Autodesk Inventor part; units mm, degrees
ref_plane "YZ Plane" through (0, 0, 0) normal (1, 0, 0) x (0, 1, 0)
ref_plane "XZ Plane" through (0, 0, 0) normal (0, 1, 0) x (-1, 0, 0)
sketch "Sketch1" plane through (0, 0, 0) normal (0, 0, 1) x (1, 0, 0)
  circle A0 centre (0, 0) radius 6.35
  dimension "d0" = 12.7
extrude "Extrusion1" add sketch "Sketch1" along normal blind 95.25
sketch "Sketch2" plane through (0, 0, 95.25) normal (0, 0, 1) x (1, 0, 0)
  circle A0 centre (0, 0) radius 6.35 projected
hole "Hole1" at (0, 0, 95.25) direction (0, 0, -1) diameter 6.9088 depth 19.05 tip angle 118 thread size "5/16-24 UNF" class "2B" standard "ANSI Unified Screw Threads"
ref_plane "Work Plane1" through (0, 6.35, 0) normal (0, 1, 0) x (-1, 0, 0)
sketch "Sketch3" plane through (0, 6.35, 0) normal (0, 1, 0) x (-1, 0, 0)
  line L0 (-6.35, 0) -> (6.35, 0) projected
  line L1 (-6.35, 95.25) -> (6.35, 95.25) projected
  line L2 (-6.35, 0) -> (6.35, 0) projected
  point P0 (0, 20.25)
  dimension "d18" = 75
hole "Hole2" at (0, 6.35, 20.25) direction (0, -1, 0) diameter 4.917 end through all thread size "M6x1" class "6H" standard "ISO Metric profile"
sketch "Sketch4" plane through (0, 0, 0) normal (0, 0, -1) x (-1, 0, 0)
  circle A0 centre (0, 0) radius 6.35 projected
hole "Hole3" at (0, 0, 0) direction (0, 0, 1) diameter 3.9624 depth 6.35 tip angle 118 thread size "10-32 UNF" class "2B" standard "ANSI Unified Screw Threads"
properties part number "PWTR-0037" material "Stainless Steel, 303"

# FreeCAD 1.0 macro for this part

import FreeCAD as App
import Part
import Sketcher
Q = App.Units.Quantity

doc = App.newDocument("Part")
params = doc.addObject("Spreadsheet::Sheet", "Params")
for row, (alias, value) in enumerate([
    ("sketch1_diameter", "0.5 in"),
    ("pad1_length", "3.75 in"),
    ("sketch2_diameter", "0.272 in"),
    ("hole_diameter", "0.272 in"),
    ("hole_depth", "0.75 in"),
    ("hole2_diameter", "4.917 mm"),
    ("sketch4_diameter", "0.156 in"),
    ("hole3_diameter", "0.156 in"),
    ("hole3_depth", "0.25 in"),
], start=1):
    params.set(f"A{row}", alias)
    params.set(f"B{row}", "=" + value)
    params.setAlias(f"B{row}", alias)

body = doc.addObject("PartDesign::Body", "Body")

sketch1 = body.newObject("Sketcher::SketchObject", "Sketch")
sketch1.AttachmentSupport = (doc.getObject("XY_Plane"), [""])
sketch1.MapMode = "FlatFace"
sketch1.addGeometry(Part.Circle(App.Vector(0, 0, 0), App.Vector(0, 0, 1), 6), False)
sketch1.addConstraint(Sketcher.Constraint("Coincident", 0, 3, -1, 1))
sketch1.addConstraint(Sketcher.Constraint("Diameter", 0, Q("0.5 in")))
sketch1.setExpression("Constraints[1]", "Params.sketch1_diameter")
pad1 = body.newObject("PartDesign::Pad", "Pad")
pad1.Profile = sketch1
pad1.setExpression("Length", "Params.pad1_length")

sketch2 = body.newObject("Sketcher::SketchObject", "Sketch001")
sketch2.AttachmentSupport = (doc.getObject("XY_Plane"), [""])
sketch2.MapMode = "FlatFace"
sketch2.AttachmentOffset = App.Placement(App.Vector(0, 0, 3.75 * 25.4), App.Rotation())
sketch2.addGeometry(Part.Circle(App.Vector(0, 0, 0), App.Vector(0, 0, 1), 3.5), False)
sketch2.addConstraint(Sketcher.Constraint("Coincident", 0, 3, -1, 1))
sketch2.addConstraint(Sketcher.Constraint("Diameter", 0, Q("0.272 in")))
sketch2.setExpression("Constraints[1]", "Params.sketch2_diameter")
doc.recompute()
hole = body.newObject("PartDesign::Hole", "Hole")
hole.Profile = sketch2
hole.ThreadType = "None"
hole.setExpression("Diameter", "Params.hole_diameter")
hole.DepthType = "Dimension"
hole.setExpression("Depth", "Params.hole_depth")
hole.DrillPoint = "Angled"
hole.DrillPointAngle = 118

sketch3 = body.newObject("Sketcher::SketchObject", "Sketch002")
sketch3.AttachmentSupport = (doc.getObject("XZ_Plane"), [""])
sketch3.MapMode = "FlatFace"
sketch3.AttachmentOffset = App.Placement(App.Vector(0, 0, -0.25 * 25.4), App.Rotation())
sketch3.addGeometry(Part.Circle(App.Vector(0, 20.2, 0), App.Vector(0, 0, 1), 2.5), False)
sketch3.addConstraint(Sketcher.Constraint("PointOnObject", 0, 3, -2))
sketch3.addConstraint(Sketcher.Constraint("Diameter", 0, 4.917))
sketch3.addConstraint(Sketcher.Constraint("DistanceY", -1, 1, 0, 3, 20.25))
doc.recompute()
hole2 = body.newObject("PartDesign::Hole", "Hole001")
hole2.Profile = sketch3
hole2.ThreadType = "None"
hole2.setExpression("Diameter", "Params.hole2_diameter")
hole2.DepthType = "ThroughAll"
hole2.Reversed = True

sketch4 = body.newObject("Sketcher::SketchObject", "Sketch003")
sketch4.AttachmentSupport = (doc.getObject("XY_Plane"), [""])
sketch4.MapMode = "FlatFace"
sketch4.addGeometry(Part.Circle(App.Vector(0, 0, 0), App.Vector(0, 0, 1), 2), False)
sketch4.addConstraint(Sketcher.Constraint("Coincident", 0, 3, -1, 1))
sketch4.addConstraint(Sketcher.Constraint("Diameter", 0, Q("0.156 in")))
sketch4.setExpression("Constraints[1]", "Params.sketch4_diameter")
doc.recompute()
hole3 = body.newObject("PartDesign::Hole", "Hole002")
hole3.Profile = sketch4
hole3.ThreadType = "None"
hole3.setExpression("Diameter", "Params.hole3_diameter")
hole3.DepthType = "Dimension"
hole3.setExpression("Depth", "Params.hole3_depth")
hole3.DrillPoint = "Angled"
hole3.DrillPointAngle = 118
hole3.Reversed = True

doc.recompute()
